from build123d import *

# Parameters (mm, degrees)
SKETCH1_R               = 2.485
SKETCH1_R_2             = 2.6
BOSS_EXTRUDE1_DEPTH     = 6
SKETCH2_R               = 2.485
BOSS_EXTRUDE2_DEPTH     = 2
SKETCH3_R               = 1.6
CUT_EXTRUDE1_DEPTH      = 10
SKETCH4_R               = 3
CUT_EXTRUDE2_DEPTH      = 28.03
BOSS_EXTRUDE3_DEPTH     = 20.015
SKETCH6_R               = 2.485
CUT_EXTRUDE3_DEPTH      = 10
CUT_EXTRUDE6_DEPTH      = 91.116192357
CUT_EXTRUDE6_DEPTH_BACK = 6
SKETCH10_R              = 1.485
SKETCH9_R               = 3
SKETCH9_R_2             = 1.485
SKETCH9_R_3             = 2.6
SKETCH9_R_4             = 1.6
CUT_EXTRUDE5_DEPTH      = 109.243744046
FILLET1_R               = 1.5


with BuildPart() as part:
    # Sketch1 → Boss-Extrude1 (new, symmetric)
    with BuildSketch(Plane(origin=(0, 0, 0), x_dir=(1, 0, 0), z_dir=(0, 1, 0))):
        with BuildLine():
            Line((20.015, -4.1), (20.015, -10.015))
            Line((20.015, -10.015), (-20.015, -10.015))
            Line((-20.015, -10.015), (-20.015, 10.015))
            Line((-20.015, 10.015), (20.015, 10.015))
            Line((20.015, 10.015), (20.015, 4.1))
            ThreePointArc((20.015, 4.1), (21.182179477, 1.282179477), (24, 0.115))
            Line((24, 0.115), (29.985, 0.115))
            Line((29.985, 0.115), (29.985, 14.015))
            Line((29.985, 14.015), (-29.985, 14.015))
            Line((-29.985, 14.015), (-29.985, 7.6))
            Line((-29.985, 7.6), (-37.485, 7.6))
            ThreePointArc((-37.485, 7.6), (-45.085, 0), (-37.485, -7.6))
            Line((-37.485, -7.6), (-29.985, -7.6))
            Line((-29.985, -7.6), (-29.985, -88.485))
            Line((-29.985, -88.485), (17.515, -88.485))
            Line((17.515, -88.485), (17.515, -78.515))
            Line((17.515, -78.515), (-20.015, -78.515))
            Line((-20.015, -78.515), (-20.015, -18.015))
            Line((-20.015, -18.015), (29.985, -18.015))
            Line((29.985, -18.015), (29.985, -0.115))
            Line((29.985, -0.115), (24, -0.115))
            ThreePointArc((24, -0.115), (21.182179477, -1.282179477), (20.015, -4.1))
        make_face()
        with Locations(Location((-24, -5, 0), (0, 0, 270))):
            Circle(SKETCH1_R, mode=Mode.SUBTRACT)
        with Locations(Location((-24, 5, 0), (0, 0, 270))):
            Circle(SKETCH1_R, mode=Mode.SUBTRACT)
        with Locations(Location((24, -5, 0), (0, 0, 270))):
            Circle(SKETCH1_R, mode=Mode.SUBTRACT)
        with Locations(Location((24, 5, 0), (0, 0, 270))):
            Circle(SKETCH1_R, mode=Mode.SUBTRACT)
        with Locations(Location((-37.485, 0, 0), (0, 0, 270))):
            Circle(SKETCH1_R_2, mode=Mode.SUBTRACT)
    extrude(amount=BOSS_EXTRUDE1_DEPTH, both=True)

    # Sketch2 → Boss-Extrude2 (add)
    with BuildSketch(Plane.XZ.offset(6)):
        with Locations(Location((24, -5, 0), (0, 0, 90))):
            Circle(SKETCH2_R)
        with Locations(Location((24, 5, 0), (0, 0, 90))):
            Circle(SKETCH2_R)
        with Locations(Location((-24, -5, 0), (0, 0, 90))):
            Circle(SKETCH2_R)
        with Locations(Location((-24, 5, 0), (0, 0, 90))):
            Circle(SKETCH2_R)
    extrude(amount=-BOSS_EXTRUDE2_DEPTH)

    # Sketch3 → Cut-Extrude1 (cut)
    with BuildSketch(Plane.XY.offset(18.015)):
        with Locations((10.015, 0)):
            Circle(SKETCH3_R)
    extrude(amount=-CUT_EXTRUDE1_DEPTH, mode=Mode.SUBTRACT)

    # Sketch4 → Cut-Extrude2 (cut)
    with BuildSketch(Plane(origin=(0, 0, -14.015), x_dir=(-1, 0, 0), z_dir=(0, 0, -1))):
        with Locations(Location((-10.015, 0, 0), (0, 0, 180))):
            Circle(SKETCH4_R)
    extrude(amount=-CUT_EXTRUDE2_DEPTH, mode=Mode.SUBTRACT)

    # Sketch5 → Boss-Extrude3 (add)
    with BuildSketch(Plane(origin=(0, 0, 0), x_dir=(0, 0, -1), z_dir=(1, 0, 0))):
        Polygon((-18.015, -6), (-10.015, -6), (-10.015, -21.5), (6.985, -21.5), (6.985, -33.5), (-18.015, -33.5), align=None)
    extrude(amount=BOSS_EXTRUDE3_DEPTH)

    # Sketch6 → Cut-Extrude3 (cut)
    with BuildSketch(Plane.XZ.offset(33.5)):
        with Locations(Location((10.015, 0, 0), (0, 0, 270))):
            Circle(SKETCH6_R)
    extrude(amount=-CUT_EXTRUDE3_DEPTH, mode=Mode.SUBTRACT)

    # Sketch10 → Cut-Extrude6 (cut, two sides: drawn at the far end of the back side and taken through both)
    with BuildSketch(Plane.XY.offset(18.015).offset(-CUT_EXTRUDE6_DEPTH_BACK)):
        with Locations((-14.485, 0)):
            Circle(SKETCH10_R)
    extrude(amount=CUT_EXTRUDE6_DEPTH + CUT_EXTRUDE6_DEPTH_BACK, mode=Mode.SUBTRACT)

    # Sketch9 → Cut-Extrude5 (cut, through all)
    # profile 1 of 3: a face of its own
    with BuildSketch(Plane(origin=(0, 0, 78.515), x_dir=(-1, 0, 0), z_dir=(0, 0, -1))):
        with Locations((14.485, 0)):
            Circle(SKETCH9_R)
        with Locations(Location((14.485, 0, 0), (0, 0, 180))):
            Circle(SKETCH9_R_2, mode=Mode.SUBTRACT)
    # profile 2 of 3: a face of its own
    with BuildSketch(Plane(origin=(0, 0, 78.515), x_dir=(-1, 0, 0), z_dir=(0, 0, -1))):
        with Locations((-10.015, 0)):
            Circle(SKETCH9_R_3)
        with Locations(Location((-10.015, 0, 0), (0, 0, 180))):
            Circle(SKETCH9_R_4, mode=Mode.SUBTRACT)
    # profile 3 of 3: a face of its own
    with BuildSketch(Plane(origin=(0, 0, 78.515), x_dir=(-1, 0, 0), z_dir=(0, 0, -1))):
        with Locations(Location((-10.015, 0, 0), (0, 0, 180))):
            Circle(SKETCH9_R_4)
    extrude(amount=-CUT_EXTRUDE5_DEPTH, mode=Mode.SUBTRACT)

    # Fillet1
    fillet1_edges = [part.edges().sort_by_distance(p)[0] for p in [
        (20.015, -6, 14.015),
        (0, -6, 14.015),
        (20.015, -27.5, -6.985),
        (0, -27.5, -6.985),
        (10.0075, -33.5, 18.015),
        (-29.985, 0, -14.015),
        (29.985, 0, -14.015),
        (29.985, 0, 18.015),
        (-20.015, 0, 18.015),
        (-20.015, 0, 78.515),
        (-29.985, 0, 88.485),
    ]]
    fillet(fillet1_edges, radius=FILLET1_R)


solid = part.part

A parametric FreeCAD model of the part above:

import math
import FreeCAD as App
import Part
import Sketcher
from FreeCAD import Vector


def edges_at(feature, points):
    """Names of the edges that pass closest to the given points."""
    edges = feature.Shape.Edges
    near = lambda p: min(range(len(edges)), key=lambda i: edges[i].distToShape(Part.Vertex(*p))[0])
    return sorted({f"Edge{near(p) + 1}" for p in points})


def add_polygon(sketch, points):
    """Adds a closed chain of lines whose ends are joined by coincident constraints."""
    first, n = sketch.GeometryCount, len(points)
    for a, b in zip(points, points[1:] + points[:1]):
        sketch.addGeometry(Part.LineSegment(App.Vector(*a, 0), App.Vector(*b, 0)), False)
    for i in range(n):
        sketch.addConstraint(Sketcher.Constraint("Coincident", first + i, 2, first + (i + 1) % n, 1))

doc = App.newDocument("Part")
body = doc.addObject("PartDesign::Body", "Body")

sketch1 = body.newObject("Sketcher::SketchObject", "Sketch")
sketch1.AttachmentSupport = (doc.getObject("XZ_Plane"), [""])
sketch1.MapMode = "FlatFace"
sketch1.addGeometry(Part.LineSegment(Vector(20, 4.1, 0), Vector(20, 10, 0)), False)
sketch1.addGeometry(Part.LineSegment(Vector(20, 10, 0), Vector(-20, 10, 0)), False)
sketch1.addGeometry(Part.LineSegment(Vector(-20, 10, 0), Vector(-20, -10, 0)), False)
sketch1.addGeometry(Part.LineSegment(Vector(-20, -10, 0), Vector(20, -10, 0)), False)
sketch1.addGeometry(Part.LineSegment(Vector(20, -10, 0), Vector(20, -4.1, 0)), False)
sketch1.addGeometry(Part.ArcOfCircle(Part.Circle(Vector(24, -4.1, 0), Vector(0, 0, 1), 4), math.radians(90), math.radians(180)), False)
sketch1.addGeometry(Part.LineSegment(Vector(24, -0.1, 0), Vector(30, -0.1, 0)), False)
sketch1.addGeometry(Part.LineSegment(Vector(30, -0.1, 0), Vector(30, -14, 0)), False)
sketch1.addGeometry(Part.LineSegment(Vector(30, -14, 0), Vector(-30, -14, 0)), False)
sketch1.addGeometry(Part.LineSegment(Vector(-30, -14, 0), Vector(-30, -7.6, 0)), False)
sketch1.addGeometry(Part.LineSegment(Vector(-30, -7.6, 0), Vector(-37.5, -7.6, 0)), False)
sketch1.addGeometry(Part.ArcOfCircle(Part.Circle(Vector(-37.5, 0, 0), Vector(0, 0, 1), 7.6), math.radians(90), math.radians(270)), False)
sketch1.addGeometry(Part.LineSegment(Vector(-37.5, 7.6, 0), Vector(-30, 7.6, 0)), False)
sketch1.addGeometry(Part.LineSegment(Vector(-30, 7.6, 0), Vector(-30, 88.5, 0)), False)
sketch1.addGeometry(Part.LineSegment(Vector(-30, 88.5, 0), Vector(17.5, 88.5, 0)), False)
sketch1.addGeometry(Part.LineSegment(Vector(17.5, 88.5, 0), Vector(17.5, 78.5, 0)), False)
sketch1.addGeometry(Part.LineSegment(Vector(17.5, 78.5, 0), Vector(-20, 78.5, 0)), False)
sketch1.addGeometry(Part.LineSegment(Vector(-20, 78.5, 0), Vector(-20, 18, 0)), False)
sketch1.addGeometry(Part.LineSegment(Vector(-20, 18, 0), Vector(30, 18, 0)), False)
sketch1.addGeometry(Part.LineSegment(Vector(30, 18, 0), Vector(30, 0.1, 0)), False)
sketch1.addGeometry(Part.LineSegment(Vector(30, 0.1, 0), Vector(24, 0.1, 0)), False)
sketch1.addGeometry(Part.ArcOfCircle(Part.Circle(Vector(24, 4.1, 0), Vector(0, 0, 1), 4), math.radians(180), math.radians(270)), False)
sketch1.addGeometry(Part.Circle(Vector(-24, 5, 0), Vector(0, 0, 1), 2.5), False)
sketch1.addGeometry(Part.Circle(Vector(24, 5, 0), Vector(0, 0, 1), 2.5), False)
sketch1.addGeometry(Part.Circle(Vector(-37.5, 0, 0), Vector(0, 0, 1), 2.6), False)
sketch1.addGeometry(Part.Circle(Vector(-24, -5, 0), Vector(0, 0, 1), 2.5), False)
sketch1.addGeometry(Part.Circle(Vector(24, -5, 0), Vector(0, 0, 1), 2.5), False)
sketch1.addConstraint(Sketcher.Constraint("Coincident", 0, 2, 1, 1))
sketch1.addConstraint(Sketcher.Constraint("Coincident", 1, 2, 2, 1))
sketch1.addConstraint(Sketcher.Constraint("Coincident", 2, 2, 3, 1))
sketch1.addConstraint(Sketcher.Constraint("Coincident", 3, 2, 4, 1))
sketch1.addConstraint(Sketcher.Constraint("Tangent", 4, 2, 5, 2))
sketch1.addConstraint(Sketcher.Constraint("Tangent", 5, 1, 6, 1))
sketch1.addConstraint(Sketcher.Constraint("Coincident", 6, 2, 7, 1))
sketch1.addConstraint(Sketcher.Constraint("Coincident", 7, 2, 8, 1))
sketch1.addConstraint(Sketcher.Constraint("Coincident", 8, 2, 9, 1))
sketch1.addConstraint(Sketcher.Constraint("Coincident", 9, 2, 10, 1))
sketch1.addConstraint(Sketcher.Constraint("Tangent", 10, 2, 11, 2))
sketch1.addConstraint(Sketcher.Constraint("Tangent", 11, 1, 12, 1))
sketch1.addConstraint(Sketcher.Constraint("Coincident", 12, 2, 13, 1))
sketch1.addConstraint(Sketcher.Constraint("Coincident", 13, 2, 14, 1))
sketch1.addConstraint(Sketcher.Constraint("Coincident", 14, 2, 15, 1))
sketch1.addConstraint(Sketcher.Constraint("Coincident", 15, 2, 16, 1))
sketch1.addConstraint(Sketcher.Constraint("Coincident", 16, 2, 17, 1))
sketch1.addConstraint(Sketcher.Constraint("Coincident", 17, 2, 18, 1))
sketch1.addConstraint(Sketcher.Constraint("Coincident", 18, 2, 19, 1))
sketch1.addConstraint(Sketcher.Constraint("Coincident", 19, 2, 20, 1))
sketch1.addConstraint(Sketcher.Constraint("Tangent", 20, 2, 21, 2))
sketch1.addConstraint(Sketcher.Constraint("Tangent", 21, 1, 0, 1))
sketch1.addConstraint(Sketcher.Constraint("Vertical", 0))
sketch1.addConstraint(Sketcher.Constraint("Horizontal", 1))
sketch1.addConstraint(Sketcher.Constraint("Vertical", 2))
sketch1.addConstraint(Sketcher.Constraint("Horizontal", 3))
sketch1.addConstraint(Sketcher.Constraint("Vertical", 4))
sketch1.addConstraint(Sketcher.Constraint("Horizontal", 6))
sketch1.addConstraint(Sketcher.Constraint("Vertical", 7))
sketch1.addConstraint(Sketcher.Constraint("Horizontal", 8))
sketch1.addConstraint(Sketcher.Constraint("Vertical", 9))
sketch1.addConstraint(Sketcher.Constraint("Horizontal", 10))
sketch1.addConstraint(Sketcher.Constraint("Horizontal", 12))
sketch1.addConstraint(Sketcher.Constraint("Vertical", 13))
sketch1.addConstraint(Sketcher.Constraint("Horizontal", 14))
sketch1.addConstraint(Sketcher.Constraint("Vertical", 15))
sketch1.addConstraint(Sketcher.Constraint("Horizontal", 16))
sketch1.addConstraint(Sketcher.Constraint("Vertical", 17))
sketch1.addConstraint(Sketcher.Constraint("Horizontal", 18))
sketch1.addConstraint(Sketcher.Constraint("Vertical", 19))
sketch1.addConstraint(Sketcher.Constraint("Horizontal", 20))
sketch1.addConstraint(Sketcher.Constraint("Coincident", 24, 3, 11, 3))
sketch1.addConstraint(Sketcher.Constraint("Equal", 5, 21))
sketch1.addConstraint(Sketcher.Constraint("Equal", 22, 23))
sketch1.addConstraint(Sketcher.Constraint("Equal", 23, 25))
sketch1.addConstraint(Sketcher.Constraint("Equal", 25, 26))
sketch1.addConstraint(Sketcher.Constraint("Symmetric", 23, 3, 25, 3, -1, 1))
sketch1.addConstraint(Sketcher.Constraint("Symmetric", 22, 3, 26, 3, -1, 1))
sketch1.addConstraint(Sketcher.Constraint("Symmetric", 0, 2, 2, 2, -1, 1))
sketch1.addConstraint(Sketcher.Constraint("Symmetric", 22, 3, 23, 3, -2))
sketch1.addConstraint(Sketcher.Constraint("Symmetric", 5, 3, 21, 3, -1))
sketch1.addConstraint(Sketcher.Constraint("Symmetric", 9, 2, 12, 2, -1))
sketch1.addConstraint(Sketcher.Constraint("Vertical", 21, 3, 23, 3))
sketch1.addConstraint(Sketcher.Constraint("Vertical", 2, 2, 16, 2))
sketch1.addConstraint(Sketcher.Constraint("Vertical", 7, 2, 18, 2))
sketch1.addConstraint(Sketcher.Constraint("Diameter", 24, 5.2))
sketch1.addConstraint(Sketcher.Constraint("Radius", 11, 7.6))
sketch1.addConstraint(Sketcher.Constraint("Diameter", 22, 4.97))
sketch1.addConstraint(Sketcher.Constraint("DistanceX", 18, 1, 18, 2, 50.0))
sketch1.addConstraint(Sketcher.Constraint("DistanceX", 10, 2, 10, 1, 7.5))
sketch1.addConstraint(Sketcher.Constraint("DistanceX", 14, 1, 14, 2, 47.5))
sketch1.addConstraint(Sketcher.Constraint("DistanceY", 7, 2, 7, 1, 13.9))
sketch1.addConstraint(Sketcher.Constraint("DistanceY", 17, 2, 17, 1, 60.5))
sketch1.addConstraint(Sketcher.Constraint("DistanceY", 19, 2, 19, 1, 17.9))
sketch1.addConstraint(Sketcher.Constraint("DistanceX", -1, 1, 5, 3, 24.0))
sketch1.addConstraint(Sketcher.Constraint("DistanceY", -1, 1, 22, 3, 5.0))
sketch1.addConstraint(Sketcher.Constraint("Radius", 5, 3.985))
sketch1.addConstraint(Sketcher.Constraint("DistanceY", 7, 2, 3, 2, 4.0))
sketch1.addConstraint(Sketcher.Constraint("DistanceX", 8, 2, 8, 1, 59.97))
sketch1.addConstraint(Sketcher.Constraint("DistanceY", 2, 2, 2, 1, 20.03))
sketch1.addConstraint(Sketcher.Constraint("DistanceY", 15, 2, 15, 1, 9.97))
pad1 = body.newObject("PartDesign::Pad", "Pad")
pad1.Profile = sketch1
pad1.Length = 12
pad1.Midplane = True

sketch2 = body.newObject("Sketcher::SketchObject", "Sketch001")
sketch2.AttachmentSupport = (doc.getObject("XZ_Plane"), [""])
sketch2.MapMode = "FlatFace"
sketch2.AttachmentOffset = App.Placement(Vector(0, 0, 6), App.Rotation())
sketch2.addGeometry(Part.Circle(Vector(24, -5, 0), Vector(0, 0, 1), 2.5), False)
sketch2.addGeometry(Part.Circle(Vector(24, 5, 0), Vector(0, 0, 1), 2.5), False)
sketch2.addGeometry(Part.Circle(Vector(-24, -5, 0), Vector(0, 0, 1), 2.5), False)
sketch2.addGeometry(Part.Circle(Vector(-24, 5, 0), Vector(0, 0, 1), 2.5), False)
sketch2.addConstraint(Sketcher.Constraint("Equal", 0, 1))
sketch2.addConstraint(Sketcher.Constraint("Equal", 1, 2))
sketch2.addConstraint(Sketcher.Constraint("Equal", 2, 3))
sketch2.addConstraint(Sketcher.Constraint("Symmetric", 1, 3, 2, 3, -1, 1))
sketch2.addConstraint(Sketcher.Constraint("Symmetric", 0, 3, 3, 3, -1, 1))
sketch2.addConstraint(Sketcher.Constraint("Symmetric", 0, 3, 2, 3, -2))
sketch2.addConstraint(Sketcher.Constraint("Diameter", 0, 4.97))
sketch2.addConstraint(Sketcher.Constraint("DistanceX", -1, 1, 0, 3, 24.0))
sketch2.addConstraint(Sketcher.Constraint("DistanceY", 0, 3, -1, 1, 5.0))
pad2 = body.newObject("PartDesign::Pad", "Pad001")
pad2.Profile = sketch2
pad2.Length = 2
pad2.Reversed = True

sketch3 = body.newObject("Sketcher::SketchObject", "Sketch002")
sketch3.AttachmentSupport = (doc.getObject("XY_Plane"), [""])
sketch3.MapMode = "FlatFace"
sketch3.AttachmentOffset = App.Placement(Vector(0, 0, 18.015), App.Rotation())
sketch3.addGeometry(Part.Circle(Vector(10, 0, 0), Vector(0, 0, 1), 1.6), False)
sketch3.addConstraint(Sketcher.Constraint("PointOnObject", 0, 3, -1))
sketch3.addConstraint(Sketcher.Constraint("Diameter", 0, 3.2))
sketch3.addConstraint(Sketcher.Constraint("DistanceX", -1, 1, 0, 3, 10.015))
pocket1 = body.newObject("PartDesign::Pocket", "Pocket")
pocket1.Profile = sketch3
pocket1.Length = 10

sketch4 = body.newObject("Sketcher::SketchObject", "Sketch003")
sketch4.AttachmentSupport = (doc.getObject("XY_Plane"), [""])
sketch4.MapMode = "FlatFace"
sketch4.AttachmentOffset = App.Placement(Vector(0, 0, -14.015), App.Rotation())
sketch4.addGeometry(Part.Circle(Vector(10, 0, 0), Vector(0, 0, 1), 3), False)
sketch4.addConstraint(Sketcher.Constraint("PointOnObject", 0, 3, -1))
sketch4.addConstraint(Sketcher.Constraint("Diameter", 0, 6.0))
sketch4.addConstraint(Sketcher.Constraint("DistanceX", -1, 1, 0, 3, 10.015))
pocket2 = body.newObject("PartDesign::Pocket", "Pocket001")
pocket2.Profile = sketch4
pocket2.Length = 28.03
pocket2.Reversed = True

sketch5 = body.newObject("Sketcher::SketchObject", "Sketch004")
sketch5.AttachmentSupport = (doc.getObject("YZ_Plane"), [""])
sketch5.MapMode = "FlatFace"
add_polygon(sketch5, [(-6, 10), (-6, 18), (-34, 18), (-34, -7), (-22, -7), (-22, 10)])
sketch5.addConstraint(Sketcher.Constraint("Vertical", 0))
sketch5.addConstraint(Sketcher.Constraint("Horizontal", 1))
sketch5.addConstraint(Sketcher.Constraint("Vertical", 2))
sketch5.addConstraint(Sketcher.Constraint("Horizontal", 3))
sketch5.addConstraint(Sketcher.Constraint("Vertical", 4))
sketch5.addConstraint(Sketcher.Constraint("Horizontal", 5))
sketch5.addConstraint(Sketcher.Constraint("DistanceX", 3, 1, 3, 2, 12.0))
sketch5.addConstraint(Sketcher.Constraint("DistanceY", 0, 1, 0, 2, 8.0))
sketch5.addConstraint(Sketcher.Constraint("DistanceY", 2, 2, 2, 1, 25.0))
sketch5.addConstraint(Sketcher.Constraint("DistanceX", 1, 2, 1, 1, 27.5))
sketch5.addConstraint(Sketcher.Constraint("DistanceX", 0, 2, -1, 1, 6.0))
sketch5.addConstraint(Sketcher.Constraint("DistanceY", -1, 1, 0, 2, 18.015))
pad3 = body.newObject("PartDesign::Pad", "Pad002")
pad3.Profile = sketch5
pad3.Length = 20.015

sketch6 = body.newObject("Sketcher::SketchObject", "Sketch005")
sketch6.AttachmentSupport = (doc.getObject("XZ_Plane"), [""])
sketch6.MapMode = "FlatFace"
sketch6.AttachmentOffset = App.Placement(Vector(0, 0, 33.5), App.Rotation())
sketch6.addGeometry(Part.Circle(Vector(10, 0, 0), Vector(0, 0, 1), 2.5), False)
sketch6.addConstraint(Sketcher.Constraint("PointOnObject", 0, 3, -1))
sketch6.addConstraint(Sketcher.Constraint("Diameter", 0, 4.97))
sketch6.addConstraint(Sketcher.Constraint("DistanceX", -1, 1, 0, 3, 10.015))
pocket3 = body.newObject("PartDesign::Pocket", "Pocket002")
pocket3.Profile = sketch6
pocket3.Length = 10

sketch7 = body.newObject("Sketcher::SketchObject", "Sketch006")
sketch7.AttachmentSupport = (doc.getObject("XY_Plane"), [""])
sketch7.MapMode = "FlatFace"
sketch7.AttachmentOffset = App.Placement(Vector(0, 0, 18.015), App.Rotation())
sketch7.addGeometry(Part.Circle(Vector(-14.5, 0, 0), Vector(0, 0, 1), 1.5), False)
sketch7.addConstraint(Sketcher.Constraint("PointOnObject", 0, 3, -1))
sketch7.addConstraint(Sketcher.Constraint("Diameter", 0, 2.97))
sketch7.addConstraint(Sketcher.Constraint("DistanceX", 0, 3, -1, 1, 14.485))
pocket4 = body.newObject("PartDesign::Pocket", "Pocket003")
pocket4.Profile = sketch7
pocket4.Type = "TwoLengths"
pocket4.Length = 91.116192
pocket4.Length2 = 6
pocket4.Reversed = True

sketch8 = body.newObject("Sketcher::SketchObject", "Sketch007")
sketch8.AttachmentSupport = (doc.getObject("XY_Plane"), [""])
sketch8.MapMode = "FlatFace"
sketch8.AttachmentOffset = App.Placement(Vector(0, 0, 78.515), App.Rotation())
sketch8.addGeometry(Part.Circle(Vector(-14.5, 0, 0), Vector(0, 0, 1), 3), False)
sketch8.addGeometry(Part.Circle(Vector(-14.5, 0, 0), Vector(0, 0, 1), 1.5), False)
sketch8.addGeometry(Part.Circle(Vector(10, 0, 0), Vector(0, 0, 1), 2.6), False)
sketch8.addConstraint(Sketcher.Constraint("Coincident", 1, 3, 0, 3))
sketch8.addConstraint(Sketcher.Constraint("PointOnObject", 0, 3, -1))
sketch8.addConstraint(Sketcher.Constraint("PointOnObject", 2, 3, -1))
sketch8.addConstraint(Sketcher.Constraint("Diameter", 0, 6.0))
sketch8.addConstraint(Sketcher.Constraint("Diameter", 2, 5.2))
sketch8.addConstraint(Sketcher.Constraint("Diameter", 1, 2.97))
sketch8.addConstraint(Sketcher.Constraint("DistanceX", 0, 3, 2, 3, 24.5))
sketch8.addConstraint(Sketcher.Constraint("DistanceX", 0, 3, -1, 1, 14.485))
pocket5 = body.newObject("PartDesign::Pocket", "Pocket004")
pocket5.Profile = sketch8
pocket5.Length = 109.243744
pocket5.Reversed = True
doc.recompute()

fillet = body.newObject("PartDesign::Fillet", "Fillet")
fillet.Base = (pocket5, edges_at(pocket5, [
    (20.015, -6, 14.015),
    (0, -6, 14.015),
    (20.015, -27.5, -6.985),
    (0, -27.5, -6.985),
    (10.008, -33.5, 18.015),
    (-29.985, 0, -14.015),
    (29.985, 0, -14.015),
    (29.985, 0, 18.015),
    (-20.015, 0, 18.015),
    (-20.015, 0, 78.515),
    (-29.985, 0, 88.485),
]))
fillet.Radius = 1.5

doc.recompute()
